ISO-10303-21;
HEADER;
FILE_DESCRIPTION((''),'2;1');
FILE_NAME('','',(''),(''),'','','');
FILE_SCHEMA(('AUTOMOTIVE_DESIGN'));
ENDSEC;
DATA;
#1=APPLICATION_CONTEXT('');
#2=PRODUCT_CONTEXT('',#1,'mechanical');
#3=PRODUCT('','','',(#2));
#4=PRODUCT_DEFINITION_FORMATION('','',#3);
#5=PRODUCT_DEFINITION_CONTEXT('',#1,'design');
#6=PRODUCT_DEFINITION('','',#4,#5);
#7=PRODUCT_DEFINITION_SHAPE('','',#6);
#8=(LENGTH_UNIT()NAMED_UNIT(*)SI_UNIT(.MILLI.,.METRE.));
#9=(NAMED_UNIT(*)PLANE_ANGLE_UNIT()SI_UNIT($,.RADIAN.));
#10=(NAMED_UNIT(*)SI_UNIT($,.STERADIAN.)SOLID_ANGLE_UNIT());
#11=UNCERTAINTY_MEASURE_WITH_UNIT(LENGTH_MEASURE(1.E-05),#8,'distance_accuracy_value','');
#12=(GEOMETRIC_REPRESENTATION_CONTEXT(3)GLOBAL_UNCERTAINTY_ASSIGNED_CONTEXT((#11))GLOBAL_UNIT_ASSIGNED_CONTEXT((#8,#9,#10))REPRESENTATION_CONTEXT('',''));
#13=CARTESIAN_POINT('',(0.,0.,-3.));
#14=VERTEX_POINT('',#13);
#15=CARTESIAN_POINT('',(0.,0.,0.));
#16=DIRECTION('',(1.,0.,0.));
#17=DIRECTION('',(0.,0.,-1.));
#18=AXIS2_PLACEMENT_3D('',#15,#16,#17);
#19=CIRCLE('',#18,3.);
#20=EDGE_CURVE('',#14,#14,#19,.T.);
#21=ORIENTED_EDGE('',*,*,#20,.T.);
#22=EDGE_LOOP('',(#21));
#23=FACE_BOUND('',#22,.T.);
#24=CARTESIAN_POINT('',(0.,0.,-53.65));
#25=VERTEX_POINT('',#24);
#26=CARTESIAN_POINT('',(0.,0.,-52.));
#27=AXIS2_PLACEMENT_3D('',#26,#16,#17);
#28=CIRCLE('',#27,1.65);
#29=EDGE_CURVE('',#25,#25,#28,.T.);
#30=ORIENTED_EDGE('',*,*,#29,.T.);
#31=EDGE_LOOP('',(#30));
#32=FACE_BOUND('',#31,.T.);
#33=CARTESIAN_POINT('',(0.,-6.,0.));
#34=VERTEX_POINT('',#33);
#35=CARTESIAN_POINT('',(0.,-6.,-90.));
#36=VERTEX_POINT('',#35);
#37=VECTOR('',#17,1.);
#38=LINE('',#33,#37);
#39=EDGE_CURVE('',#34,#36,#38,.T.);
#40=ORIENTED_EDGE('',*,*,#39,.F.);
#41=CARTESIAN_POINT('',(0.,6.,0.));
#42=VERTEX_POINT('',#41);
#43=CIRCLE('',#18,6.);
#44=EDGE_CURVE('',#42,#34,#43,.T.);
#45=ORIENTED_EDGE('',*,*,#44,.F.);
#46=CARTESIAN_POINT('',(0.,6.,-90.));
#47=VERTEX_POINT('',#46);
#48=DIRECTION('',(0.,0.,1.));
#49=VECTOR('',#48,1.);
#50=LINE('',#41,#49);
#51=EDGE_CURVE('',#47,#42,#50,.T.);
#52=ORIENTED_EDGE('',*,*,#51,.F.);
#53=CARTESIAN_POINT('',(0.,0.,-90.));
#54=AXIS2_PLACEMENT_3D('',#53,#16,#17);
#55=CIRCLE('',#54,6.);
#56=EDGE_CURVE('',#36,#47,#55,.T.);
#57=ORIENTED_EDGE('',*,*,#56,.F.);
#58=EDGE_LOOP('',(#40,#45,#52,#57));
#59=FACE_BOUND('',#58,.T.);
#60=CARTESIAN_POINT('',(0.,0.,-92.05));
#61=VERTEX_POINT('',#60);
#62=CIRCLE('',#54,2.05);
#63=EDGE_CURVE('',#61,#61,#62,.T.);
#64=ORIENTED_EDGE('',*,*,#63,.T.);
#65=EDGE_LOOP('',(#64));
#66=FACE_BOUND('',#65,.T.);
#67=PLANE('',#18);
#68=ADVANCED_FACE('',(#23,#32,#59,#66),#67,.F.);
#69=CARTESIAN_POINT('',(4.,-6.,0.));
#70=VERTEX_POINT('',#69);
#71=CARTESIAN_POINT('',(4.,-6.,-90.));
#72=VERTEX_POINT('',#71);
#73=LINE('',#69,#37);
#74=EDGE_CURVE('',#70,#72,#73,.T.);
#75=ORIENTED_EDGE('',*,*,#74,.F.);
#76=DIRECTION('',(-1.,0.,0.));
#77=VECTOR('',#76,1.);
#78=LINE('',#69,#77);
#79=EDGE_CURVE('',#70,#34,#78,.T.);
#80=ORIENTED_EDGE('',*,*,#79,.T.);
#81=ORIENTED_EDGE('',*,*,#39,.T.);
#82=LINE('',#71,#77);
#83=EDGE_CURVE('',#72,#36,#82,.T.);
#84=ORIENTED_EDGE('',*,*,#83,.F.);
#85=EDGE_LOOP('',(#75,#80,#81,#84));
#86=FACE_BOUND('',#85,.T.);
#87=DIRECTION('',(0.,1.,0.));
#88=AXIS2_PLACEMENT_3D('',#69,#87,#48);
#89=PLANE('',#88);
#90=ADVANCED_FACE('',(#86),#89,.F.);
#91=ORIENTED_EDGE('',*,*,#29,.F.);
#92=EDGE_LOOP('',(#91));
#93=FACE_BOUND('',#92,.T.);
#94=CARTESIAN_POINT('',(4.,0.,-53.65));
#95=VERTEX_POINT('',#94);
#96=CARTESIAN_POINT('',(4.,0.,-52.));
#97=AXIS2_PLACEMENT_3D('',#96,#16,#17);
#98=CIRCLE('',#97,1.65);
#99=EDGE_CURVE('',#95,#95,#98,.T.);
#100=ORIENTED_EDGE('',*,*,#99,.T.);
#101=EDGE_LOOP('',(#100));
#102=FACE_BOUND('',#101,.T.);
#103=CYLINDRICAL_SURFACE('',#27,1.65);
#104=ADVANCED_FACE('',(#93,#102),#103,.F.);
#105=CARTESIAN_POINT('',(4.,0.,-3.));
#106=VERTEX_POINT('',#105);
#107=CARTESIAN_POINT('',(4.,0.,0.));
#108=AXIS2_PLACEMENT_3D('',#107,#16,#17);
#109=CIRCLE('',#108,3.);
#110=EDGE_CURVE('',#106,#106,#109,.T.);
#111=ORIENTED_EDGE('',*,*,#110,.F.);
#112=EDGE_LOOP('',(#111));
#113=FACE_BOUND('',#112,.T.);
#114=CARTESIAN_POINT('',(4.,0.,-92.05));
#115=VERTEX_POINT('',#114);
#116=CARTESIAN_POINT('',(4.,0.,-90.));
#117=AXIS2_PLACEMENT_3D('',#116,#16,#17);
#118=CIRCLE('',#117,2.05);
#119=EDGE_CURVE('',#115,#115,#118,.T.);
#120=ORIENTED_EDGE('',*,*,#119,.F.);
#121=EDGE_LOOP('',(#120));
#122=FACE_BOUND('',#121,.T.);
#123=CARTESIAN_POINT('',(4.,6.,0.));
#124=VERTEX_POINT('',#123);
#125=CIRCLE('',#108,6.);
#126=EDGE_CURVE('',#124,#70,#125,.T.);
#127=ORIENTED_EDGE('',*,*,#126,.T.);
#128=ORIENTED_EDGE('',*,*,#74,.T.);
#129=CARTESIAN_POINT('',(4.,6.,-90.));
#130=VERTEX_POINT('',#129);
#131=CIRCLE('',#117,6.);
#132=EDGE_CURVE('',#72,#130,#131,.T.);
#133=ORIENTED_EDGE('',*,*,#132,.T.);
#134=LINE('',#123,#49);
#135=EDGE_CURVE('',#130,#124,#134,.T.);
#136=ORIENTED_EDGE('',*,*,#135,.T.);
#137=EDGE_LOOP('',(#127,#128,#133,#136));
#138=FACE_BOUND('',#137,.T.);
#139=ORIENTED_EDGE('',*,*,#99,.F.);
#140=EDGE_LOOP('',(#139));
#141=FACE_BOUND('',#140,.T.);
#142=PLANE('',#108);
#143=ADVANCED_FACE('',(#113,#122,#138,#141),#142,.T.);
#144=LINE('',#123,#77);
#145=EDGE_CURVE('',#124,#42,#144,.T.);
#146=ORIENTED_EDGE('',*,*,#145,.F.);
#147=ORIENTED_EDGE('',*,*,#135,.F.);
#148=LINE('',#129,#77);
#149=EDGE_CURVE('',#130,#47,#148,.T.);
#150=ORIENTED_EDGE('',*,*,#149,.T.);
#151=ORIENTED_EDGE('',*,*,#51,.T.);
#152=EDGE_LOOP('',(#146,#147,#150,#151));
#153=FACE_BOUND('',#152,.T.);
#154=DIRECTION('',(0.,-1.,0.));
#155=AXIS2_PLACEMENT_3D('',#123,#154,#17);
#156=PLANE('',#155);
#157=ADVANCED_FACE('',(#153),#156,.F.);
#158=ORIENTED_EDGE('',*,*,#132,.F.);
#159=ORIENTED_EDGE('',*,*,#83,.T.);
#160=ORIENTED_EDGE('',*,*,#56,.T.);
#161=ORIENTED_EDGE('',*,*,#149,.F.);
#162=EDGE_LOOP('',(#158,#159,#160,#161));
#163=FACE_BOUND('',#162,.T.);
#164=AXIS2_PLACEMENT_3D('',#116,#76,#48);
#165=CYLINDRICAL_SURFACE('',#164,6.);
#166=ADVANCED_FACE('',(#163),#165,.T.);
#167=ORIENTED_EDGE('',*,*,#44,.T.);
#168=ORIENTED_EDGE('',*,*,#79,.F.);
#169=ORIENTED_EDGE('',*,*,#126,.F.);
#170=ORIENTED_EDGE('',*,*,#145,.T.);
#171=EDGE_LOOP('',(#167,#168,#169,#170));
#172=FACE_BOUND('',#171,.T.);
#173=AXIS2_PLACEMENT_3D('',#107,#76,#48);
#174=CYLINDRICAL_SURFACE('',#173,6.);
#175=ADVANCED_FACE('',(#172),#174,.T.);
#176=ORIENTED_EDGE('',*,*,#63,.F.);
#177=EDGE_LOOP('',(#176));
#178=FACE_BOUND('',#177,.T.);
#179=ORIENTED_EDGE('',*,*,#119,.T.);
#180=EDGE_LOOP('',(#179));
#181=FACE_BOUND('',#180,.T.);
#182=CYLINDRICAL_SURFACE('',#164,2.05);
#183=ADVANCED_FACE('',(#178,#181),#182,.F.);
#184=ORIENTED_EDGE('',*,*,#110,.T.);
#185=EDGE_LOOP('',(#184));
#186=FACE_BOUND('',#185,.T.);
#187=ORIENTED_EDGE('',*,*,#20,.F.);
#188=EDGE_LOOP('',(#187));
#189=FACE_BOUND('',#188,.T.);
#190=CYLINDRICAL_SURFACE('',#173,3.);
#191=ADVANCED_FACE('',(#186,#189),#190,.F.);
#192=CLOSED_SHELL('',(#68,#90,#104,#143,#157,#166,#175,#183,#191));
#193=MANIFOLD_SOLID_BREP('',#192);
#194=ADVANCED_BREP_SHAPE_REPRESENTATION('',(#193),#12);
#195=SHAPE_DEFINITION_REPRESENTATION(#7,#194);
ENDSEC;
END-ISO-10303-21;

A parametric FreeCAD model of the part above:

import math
import FreeCAD as App
import Part
import Sketcher
from FreeCAD import Vector
Q = App.Units.Quantity

doc = App.newDocument("Part")
body = doc.addObject("PartDesign::Body", "Body")

sketch1 = body.newObject("Sketcher::SketchObject", "Sketch")
sketch1.AttachmentSupport = (doc.getObject("YZ_Plane"), [""])
sketch1.MapMode = "FlatFace"
sketch1.addGeometry([
    Part.LineSegment(Vector(6, -90, 0), Vector(6, 0, 0)),
    Part.ArcOfCircle(Part.Circle(Vector(0, 0, 0), Vector(0, 0, 1), 6), math.radians(0), math.radians(180)),
    Part.LineSegment(Vector(-6, 0, 0), Vector(-6, -90, 0)),
    Part.ArcOfCircle(Part.Circle(Vector(0, -90, 0), Vector(0, 0, 1), 6), math.radians(180), math.radians(360)),
    Part.Circle(Vector(0, -90, 0), Vector(0, 0, 1), 2),
    Part.Circle(Vector(0, 0, 0), Vector(0, 0, 1), 3),
], False)
sketch1.addConstraint([
    Sketcher.Constraint("Tangent", 0, 2, 1, 1),
    Sketcher.Constraint("Tangent", 1, 2, 2, 1),
    Sketcher.Constraint("Tangent", 2, 2, 3, 1),
    Sketcher.Constraint("Tangent", 3, 2, 0, 1),
    Sketcher.Constraint("Vertical", 0),
    Sketcher.Constraint("Vertical", 2),
    Sketcher.Constraint("Coincident", 1, 3, -1, 1),
    Sketcher.Constraint("Coincident", 5, 3, -1, 1),
    Sketcher.Constraint("Coincident", 4, 3, 3, 3),
    Sketcher.Constraint("Diameter", 5, Q("6 mm")),
    Sketcher.Constraint("Radius", 1, Q("6 mm")),
    Sketcher.Constraint("Diameter", 4, Q("4.1 mm")),
    Sketcher.Constraint("DistanceY", 0, 1, 0, 2, Q("90 mm")),
])
pad1 = body.newObject("PartDesign::Pad", "Pad")
pad1.Profile = sketch1
pad1.Length = 4

sketch2 = body.newObject("Sketcher::SketchObject", "Sketch001")
sketch2.AttachmentSupport = (doc.getObject("YZ_Plane"), [""])
sketch2.MapMode = "FlatFace"
sketch2.AttachmentOffset = App.Placement(Vector(0, 0, 4), App.Rotation())
sketch2.addGeometry(Part.Circle(Vector(0, -52, 0), Vector(0, 0, 1), 1.6), False)
sketch2.addConstraint([
    Sketcher.Constraint("PointOnObject", 0, 3, -2),
    Sketcher.Constraint("Diameter", 0, Q("3.3 mm")),
    Sketcher.Constraint("DistanceY", 0, 3, -1, 1, Q("52 mm")),
])
pocket1 = body.newObject("PartDesign::Pocket", "Pocket")
pocket1.Profile = sketch2
pocket1.Type = "ThroughAll"

doc.recompute()
